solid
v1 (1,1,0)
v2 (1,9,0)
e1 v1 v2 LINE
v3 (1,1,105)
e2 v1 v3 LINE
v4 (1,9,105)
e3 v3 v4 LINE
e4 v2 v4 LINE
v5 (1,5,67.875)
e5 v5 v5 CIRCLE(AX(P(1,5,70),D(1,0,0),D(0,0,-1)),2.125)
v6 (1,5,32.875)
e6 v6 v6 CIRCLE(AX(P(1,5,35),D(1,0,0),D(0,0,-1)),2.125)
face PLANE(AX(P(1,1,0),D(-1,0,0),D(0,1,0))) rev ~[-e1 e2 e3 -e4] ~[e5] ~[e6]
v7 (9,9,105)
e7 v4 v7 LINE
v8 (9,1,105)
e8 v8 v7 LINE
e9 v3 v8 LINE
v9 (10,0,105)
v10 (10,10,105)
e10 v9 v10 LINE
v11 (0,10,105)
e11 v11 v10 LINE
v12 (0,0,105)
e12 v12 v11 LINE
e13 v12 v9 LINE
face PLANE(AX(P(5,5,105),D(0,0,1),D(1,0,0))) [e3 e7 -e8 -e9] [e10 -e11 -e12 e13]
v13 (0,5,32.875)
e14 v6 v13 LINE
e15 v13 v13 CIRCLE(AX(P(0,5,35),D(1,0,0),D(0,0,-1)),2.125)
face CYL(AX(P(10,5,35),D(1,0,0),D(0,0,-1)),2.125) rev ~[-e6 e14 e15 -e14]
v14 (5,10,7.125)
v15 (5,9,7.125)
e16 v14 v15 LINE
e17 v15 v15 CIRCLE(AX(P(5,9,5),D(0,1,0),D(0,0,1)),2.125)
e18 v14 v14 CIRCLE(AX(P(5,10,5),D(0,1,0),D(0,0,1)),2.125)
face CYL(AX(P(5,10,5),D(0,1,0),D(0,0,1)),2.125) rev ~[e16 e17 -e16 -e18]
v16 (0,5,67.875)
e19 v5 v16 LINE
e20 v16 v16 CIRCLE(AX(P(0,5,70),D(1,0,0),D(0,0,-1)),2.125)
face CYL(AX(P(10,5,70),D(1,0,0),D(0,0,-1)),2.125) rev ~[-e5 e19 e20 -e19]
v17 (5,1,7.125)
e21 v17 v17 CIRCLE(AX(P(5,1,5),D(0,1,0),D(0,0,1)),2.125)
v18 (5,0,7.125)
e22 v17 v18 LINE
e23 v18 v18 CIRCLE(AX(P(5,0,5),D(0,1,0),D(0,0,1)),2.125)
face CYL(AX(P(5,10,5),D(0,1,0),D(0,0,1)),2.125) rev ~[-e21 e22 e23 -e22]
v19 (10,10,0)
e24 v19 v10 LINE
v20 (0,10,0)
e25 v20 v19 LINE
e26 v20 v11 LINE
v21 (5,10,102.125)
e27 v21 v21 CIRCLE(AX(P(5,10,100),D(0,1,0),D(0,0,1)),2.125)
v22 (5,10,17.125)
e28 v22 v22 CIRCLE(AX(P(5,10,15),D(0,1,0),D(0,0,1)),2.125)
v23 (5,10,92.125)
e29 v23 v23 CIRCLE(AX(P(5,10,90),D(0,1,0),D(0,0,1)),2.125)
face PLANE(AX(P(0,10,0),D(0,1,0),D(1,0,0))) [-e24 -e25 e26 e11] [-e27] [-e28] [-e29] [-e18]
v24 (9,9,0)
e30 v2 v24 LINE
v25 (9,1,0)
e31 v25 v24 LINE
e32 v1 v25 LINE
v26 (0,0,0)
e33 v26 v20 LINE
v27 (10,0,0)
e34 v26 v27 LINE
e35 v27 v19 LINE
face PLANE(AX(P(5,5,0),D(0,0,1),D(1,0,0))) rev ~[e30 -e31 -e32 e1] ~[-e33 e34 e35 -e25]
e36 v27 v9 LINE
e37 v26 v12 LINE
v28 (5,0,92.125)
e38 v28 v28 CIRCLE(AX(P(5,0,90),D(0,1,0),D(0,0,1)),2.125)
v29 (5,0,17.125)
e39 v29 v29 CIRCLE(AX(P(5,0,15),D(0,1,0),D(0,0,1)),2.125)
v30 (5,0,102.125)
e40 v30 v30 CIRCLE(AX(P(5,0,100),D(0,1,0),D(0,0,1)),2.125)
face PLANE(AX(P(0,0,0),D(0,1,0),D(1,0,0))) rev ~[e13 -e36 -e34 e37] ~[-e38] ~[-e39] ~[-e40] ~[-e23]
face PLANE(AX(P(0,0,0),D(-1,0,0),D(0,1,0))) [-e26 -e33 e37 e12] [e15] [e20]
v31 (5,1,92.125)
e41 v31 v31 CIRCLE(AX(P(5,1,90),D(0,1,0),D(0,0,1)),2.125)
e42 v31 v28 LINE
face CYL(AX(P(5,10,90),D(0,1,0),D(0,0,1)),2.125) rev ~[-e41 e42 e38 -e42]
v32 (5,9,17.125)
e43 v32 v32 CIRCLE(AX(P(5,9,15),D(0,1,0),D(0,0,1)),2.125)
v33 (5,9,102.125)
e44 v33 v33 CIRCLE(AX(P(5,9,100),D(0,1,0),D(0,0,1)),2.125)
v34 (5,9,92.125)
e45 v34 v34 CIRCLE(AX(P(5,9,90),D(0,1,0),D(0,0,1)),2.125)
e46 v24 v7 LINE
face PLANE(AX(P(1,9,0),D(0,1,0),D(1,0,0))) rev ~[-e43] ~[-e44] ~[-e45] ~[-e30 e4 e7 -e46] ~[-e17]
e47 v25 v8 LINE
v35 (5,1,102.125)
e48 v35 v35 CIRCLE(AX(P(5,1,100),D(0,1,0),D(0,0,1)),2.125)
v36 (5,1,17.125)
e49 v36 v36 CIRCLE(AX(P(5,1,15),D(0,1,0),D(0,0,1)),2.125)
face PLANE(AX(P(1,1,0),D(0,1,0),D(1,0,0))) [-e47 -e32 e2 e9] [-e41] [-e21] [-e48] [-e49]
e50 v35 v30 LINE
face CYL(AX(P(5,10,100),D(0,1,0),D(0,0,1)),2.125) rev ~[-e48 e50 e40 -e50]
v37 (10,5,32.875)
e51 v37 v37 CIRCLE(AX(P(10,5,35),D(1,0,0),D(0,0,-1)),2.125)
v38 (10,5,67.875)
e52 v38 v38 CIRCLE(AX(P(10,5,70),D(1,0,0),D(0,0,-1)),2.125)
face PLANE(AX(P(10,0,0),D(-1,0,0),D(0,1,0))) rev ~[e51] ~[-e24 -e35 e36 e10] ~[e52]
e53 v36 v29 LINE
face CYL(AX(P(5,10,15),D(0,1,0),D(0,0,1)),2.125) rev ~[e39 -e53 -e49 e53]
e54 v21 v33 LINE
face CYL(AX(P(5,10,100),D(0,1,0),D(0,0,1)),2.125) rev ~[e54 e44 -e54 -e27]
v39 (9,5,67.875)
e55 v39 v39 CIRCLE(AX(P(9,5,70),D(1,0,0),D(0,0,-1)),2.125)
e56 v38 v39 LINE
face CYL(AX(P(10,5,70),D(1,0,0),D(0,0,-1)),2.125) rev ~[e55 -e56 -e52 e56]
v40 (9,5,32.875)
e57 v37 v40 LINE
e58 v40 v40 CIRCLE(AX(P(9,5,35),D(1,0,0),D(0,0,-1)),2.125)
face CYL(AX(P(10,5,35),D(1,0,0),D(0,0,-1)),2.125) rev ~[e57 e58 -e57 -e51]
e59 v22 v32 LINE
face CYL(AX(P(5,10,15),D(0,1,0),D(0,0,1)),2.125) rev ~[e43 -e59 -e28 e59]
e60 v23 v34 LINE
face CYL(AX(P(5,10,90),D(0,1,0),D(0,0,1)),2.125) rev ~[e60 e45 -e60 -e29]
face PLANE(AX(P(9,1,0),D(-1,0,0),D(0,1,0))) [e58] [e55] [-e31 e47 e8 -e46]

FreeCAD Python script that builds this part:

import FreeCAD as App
import Part
import Sketcher


def add_polygon(sketch, points):
    """Adds a closed chain of lines whose ends are joined by coincident constraints."""
    first, n = sketch.GeometryCount, len(points)
    for a, b in zip(points, points[1:] + points[:1]):
        sketch.addGeometry(Part.LineSegment(App.Vector(*a, 0), App.Vector(*b, 0)), False)
    for i in range(n):
        sketch.addConstraint(Sketcher.Constraint("Coincident", first + i, 2, first + (i + 1) % n, 1))

doc = App.newDocument("Part")
body = doc.addObject("PartDesign::Body", "Body")

# Sketch on XY plane
sketch1 = doc.addObject("Sketcher::SketchObject", "Sketch")
body.addObject(sketch1)
sketch1.AttachmentSupport = (doc.XY_Plane, [""])
sketch1.MapMode = "FlatFace"
add_polygon(sketch1, [(0, 10), (0, 0), (10, 0), (10, 10)])  # lines 0-3
add_polygon(sketch1, [(9, 1), (1, 1), (1, 9), (9, 9)])  # lines 4-7
sketch1.addConstraint(Sketcher.Constraint("Vertical", 0))
sketch1.addConstraint(Sketcher.Constraint("Horizontal", 1))
sketch1.addConstraint(Sketcher.Constraint("Vertical", 2))
sketch1.addConstraint(Sketcher.Constraint("Horizontal", 3))
sketch1.addConstraint(Sketcher.Constraint("Horizontal", 4))
sketch1.addConstraint(Sketcher.Constraint("Vertical", 5))
sketch1.addConstraint(Sketcher.Constraint("Horizontal", 6))
sketch1.addConstraint(Sketcher.Constraint("Vertical", 7))
sketch1.addConstraint(Sketcher.Constraint("Coincident", 0, 2, -1, 1))
sketch1.addConstraint(Sketcher.Constraint("Equal", 3, 0))
sketch1.addConstraint(Sketcher.Constraint("Equal", 6, 5))
sketch1.addConstraint(Sketcher.Constraint("DistanceX", 1, 1, 1, 2, 10.0))
sketch1.addConstraint(Sketcher.Constraint("DistanceX", 4, 2, 4, 1, 8.0))
sketch1.addConstraint(Sketcher.Constraint("DistanceX", -1, 1, 4, 2, 1.0))
sketch1.addConstraint(Sketcher.Constraint("DistanceY", -1, 1, 4, 2, 1.0))
pad1 = doc.addObject("PartDesign::Pad", "Pad")
body.addObject(pad1)
pad1.Profile = sketch1
pad1.Length = 105

# Sketch on XZ plane
sketch2 = doc.addObject("Sketcher::SketchObject", "Sketch001")
body.addObject(sketch2)
sketch2.AttachmentSupport = (doc.XZ_Plane, [""])
sketch2.MapMode = "FlatFace"
sketch2.AttachmentOffset = App.Placement(App.Vector(0, 0, -10), App.Rotation())
sketch2.addGeometry(Part.Circle(App.Vector(5, 5, 0), App.Vector(0, 0, 1), 2.1), False)
sketch2.addGeometry(Part.Circle(App.Vector(5, 15, 0), App.Vector(0, 0, 1), 2.1), False)
sketch2.addGeometry(Part.Circle(App.Vector(5, 100, 0), App.Vector(0, 0, 1), 2.1), False)
sketch2.addGeometry(Part.Circle(App.Vector(5, 90, 0), App.Vector(0, 0, 1), 2.1), False)
sketch2.addConstraint(Sketcher.Constraint("Equal", 0, 1))
sketch2.addConstraint(Sketcher.Constraint("Equal", 1, 2))
sketch2.addConstraint(Sketcher.Constraint("Equal", 2, 3))
sketch2.addConstraint(Sketcher.Constraint("Vertical", 0, 3, 1, 3))
sketch2.addConstraint(Sketcher.Constraint("Vertical", 1, 3, 2, 3))
sketch2.addConstraint(Sketcher.Constraint("Vertical", 2, 3, 3, 3))
sketch2.addConstraint(Sketcher.Constraint("Diameter", 0, 4.25))
sketch2.addConstraint(Sketcher.Constraint("DistanceX", -1, 1, 0, 3, 5.0))
sketch2.addConstraint(Sketcher.Constraint("DistanceY", -1, 1, 0, 3, 5.0))
sketch2.addConstraint(Sketcher.Constraint("DistanceY", -1, 1, 1, 3, 15.0))
sketch2.addConstraint(Sketcher.Constraint("DistanceY", -1, 1, 2, 3, 100.0))
sketch2.addConstraint(Sketcher.Constraint("DistanceY", -1, 1, 3, 3, 90.0))
pocket1 = doc.addObject("PartDesign::Pocket", "Pocket")
body.addObject(pocket1)
pocket1.Profile = sketch2
pocket1.Length = 116
pocket1.Reversed = True

# Sketch on YZ plane
sketch3 = doc.addObject("Sketcher::SketchObject", "Sketch002")
body.addObject(sketch3)
sketch3.AttachmentSupport = (doc.YZ_Plane, [""])
sketch3.MapMode = "FlatFace"
sketch3.AttachmentOffset = App.Placement(App.Vector(0, 0, 10), App.Rotation())
sketch3.addGeometry(Part.Circle(App.Vector(5, 70, 0), App.Vector(0, 0, 1), 2.1), False)
sketch3.addGeometry(Part.Circle(App.Vector(5, 35, 0), App.Vector(0, 0, 1), 2.1), False)
sketch3.addConstraint(Sketcher.Constraint("Equal", 0, 1))
sketch3.addConstraint(Sketcher.Constraint("Vertical", 0, 3, 1, 3))
sketch3.addConstraint(Sketcher.Constraint("Diameter", 0, 4.25))
sketch3.addConstraint(Sketcher.Constraint("DistanceX", -1, 1, 0, 3, 5.0))
sketch3.addConstraint(Sketcher.Constraint("DistanceY", -1, 1, 0, 3, 70.0))
sketch3.addConstraint(Sketcher.Constraint("DistanceY", -1, 1, 1, 3, 35.0))
pocket2 = doc.addObject("PartDesign::Pocket", "Pocket001")
body.addObject(pocket2)
pocket2.Profile = sketch3
pocket2.Length = 10

doc.recompute()
